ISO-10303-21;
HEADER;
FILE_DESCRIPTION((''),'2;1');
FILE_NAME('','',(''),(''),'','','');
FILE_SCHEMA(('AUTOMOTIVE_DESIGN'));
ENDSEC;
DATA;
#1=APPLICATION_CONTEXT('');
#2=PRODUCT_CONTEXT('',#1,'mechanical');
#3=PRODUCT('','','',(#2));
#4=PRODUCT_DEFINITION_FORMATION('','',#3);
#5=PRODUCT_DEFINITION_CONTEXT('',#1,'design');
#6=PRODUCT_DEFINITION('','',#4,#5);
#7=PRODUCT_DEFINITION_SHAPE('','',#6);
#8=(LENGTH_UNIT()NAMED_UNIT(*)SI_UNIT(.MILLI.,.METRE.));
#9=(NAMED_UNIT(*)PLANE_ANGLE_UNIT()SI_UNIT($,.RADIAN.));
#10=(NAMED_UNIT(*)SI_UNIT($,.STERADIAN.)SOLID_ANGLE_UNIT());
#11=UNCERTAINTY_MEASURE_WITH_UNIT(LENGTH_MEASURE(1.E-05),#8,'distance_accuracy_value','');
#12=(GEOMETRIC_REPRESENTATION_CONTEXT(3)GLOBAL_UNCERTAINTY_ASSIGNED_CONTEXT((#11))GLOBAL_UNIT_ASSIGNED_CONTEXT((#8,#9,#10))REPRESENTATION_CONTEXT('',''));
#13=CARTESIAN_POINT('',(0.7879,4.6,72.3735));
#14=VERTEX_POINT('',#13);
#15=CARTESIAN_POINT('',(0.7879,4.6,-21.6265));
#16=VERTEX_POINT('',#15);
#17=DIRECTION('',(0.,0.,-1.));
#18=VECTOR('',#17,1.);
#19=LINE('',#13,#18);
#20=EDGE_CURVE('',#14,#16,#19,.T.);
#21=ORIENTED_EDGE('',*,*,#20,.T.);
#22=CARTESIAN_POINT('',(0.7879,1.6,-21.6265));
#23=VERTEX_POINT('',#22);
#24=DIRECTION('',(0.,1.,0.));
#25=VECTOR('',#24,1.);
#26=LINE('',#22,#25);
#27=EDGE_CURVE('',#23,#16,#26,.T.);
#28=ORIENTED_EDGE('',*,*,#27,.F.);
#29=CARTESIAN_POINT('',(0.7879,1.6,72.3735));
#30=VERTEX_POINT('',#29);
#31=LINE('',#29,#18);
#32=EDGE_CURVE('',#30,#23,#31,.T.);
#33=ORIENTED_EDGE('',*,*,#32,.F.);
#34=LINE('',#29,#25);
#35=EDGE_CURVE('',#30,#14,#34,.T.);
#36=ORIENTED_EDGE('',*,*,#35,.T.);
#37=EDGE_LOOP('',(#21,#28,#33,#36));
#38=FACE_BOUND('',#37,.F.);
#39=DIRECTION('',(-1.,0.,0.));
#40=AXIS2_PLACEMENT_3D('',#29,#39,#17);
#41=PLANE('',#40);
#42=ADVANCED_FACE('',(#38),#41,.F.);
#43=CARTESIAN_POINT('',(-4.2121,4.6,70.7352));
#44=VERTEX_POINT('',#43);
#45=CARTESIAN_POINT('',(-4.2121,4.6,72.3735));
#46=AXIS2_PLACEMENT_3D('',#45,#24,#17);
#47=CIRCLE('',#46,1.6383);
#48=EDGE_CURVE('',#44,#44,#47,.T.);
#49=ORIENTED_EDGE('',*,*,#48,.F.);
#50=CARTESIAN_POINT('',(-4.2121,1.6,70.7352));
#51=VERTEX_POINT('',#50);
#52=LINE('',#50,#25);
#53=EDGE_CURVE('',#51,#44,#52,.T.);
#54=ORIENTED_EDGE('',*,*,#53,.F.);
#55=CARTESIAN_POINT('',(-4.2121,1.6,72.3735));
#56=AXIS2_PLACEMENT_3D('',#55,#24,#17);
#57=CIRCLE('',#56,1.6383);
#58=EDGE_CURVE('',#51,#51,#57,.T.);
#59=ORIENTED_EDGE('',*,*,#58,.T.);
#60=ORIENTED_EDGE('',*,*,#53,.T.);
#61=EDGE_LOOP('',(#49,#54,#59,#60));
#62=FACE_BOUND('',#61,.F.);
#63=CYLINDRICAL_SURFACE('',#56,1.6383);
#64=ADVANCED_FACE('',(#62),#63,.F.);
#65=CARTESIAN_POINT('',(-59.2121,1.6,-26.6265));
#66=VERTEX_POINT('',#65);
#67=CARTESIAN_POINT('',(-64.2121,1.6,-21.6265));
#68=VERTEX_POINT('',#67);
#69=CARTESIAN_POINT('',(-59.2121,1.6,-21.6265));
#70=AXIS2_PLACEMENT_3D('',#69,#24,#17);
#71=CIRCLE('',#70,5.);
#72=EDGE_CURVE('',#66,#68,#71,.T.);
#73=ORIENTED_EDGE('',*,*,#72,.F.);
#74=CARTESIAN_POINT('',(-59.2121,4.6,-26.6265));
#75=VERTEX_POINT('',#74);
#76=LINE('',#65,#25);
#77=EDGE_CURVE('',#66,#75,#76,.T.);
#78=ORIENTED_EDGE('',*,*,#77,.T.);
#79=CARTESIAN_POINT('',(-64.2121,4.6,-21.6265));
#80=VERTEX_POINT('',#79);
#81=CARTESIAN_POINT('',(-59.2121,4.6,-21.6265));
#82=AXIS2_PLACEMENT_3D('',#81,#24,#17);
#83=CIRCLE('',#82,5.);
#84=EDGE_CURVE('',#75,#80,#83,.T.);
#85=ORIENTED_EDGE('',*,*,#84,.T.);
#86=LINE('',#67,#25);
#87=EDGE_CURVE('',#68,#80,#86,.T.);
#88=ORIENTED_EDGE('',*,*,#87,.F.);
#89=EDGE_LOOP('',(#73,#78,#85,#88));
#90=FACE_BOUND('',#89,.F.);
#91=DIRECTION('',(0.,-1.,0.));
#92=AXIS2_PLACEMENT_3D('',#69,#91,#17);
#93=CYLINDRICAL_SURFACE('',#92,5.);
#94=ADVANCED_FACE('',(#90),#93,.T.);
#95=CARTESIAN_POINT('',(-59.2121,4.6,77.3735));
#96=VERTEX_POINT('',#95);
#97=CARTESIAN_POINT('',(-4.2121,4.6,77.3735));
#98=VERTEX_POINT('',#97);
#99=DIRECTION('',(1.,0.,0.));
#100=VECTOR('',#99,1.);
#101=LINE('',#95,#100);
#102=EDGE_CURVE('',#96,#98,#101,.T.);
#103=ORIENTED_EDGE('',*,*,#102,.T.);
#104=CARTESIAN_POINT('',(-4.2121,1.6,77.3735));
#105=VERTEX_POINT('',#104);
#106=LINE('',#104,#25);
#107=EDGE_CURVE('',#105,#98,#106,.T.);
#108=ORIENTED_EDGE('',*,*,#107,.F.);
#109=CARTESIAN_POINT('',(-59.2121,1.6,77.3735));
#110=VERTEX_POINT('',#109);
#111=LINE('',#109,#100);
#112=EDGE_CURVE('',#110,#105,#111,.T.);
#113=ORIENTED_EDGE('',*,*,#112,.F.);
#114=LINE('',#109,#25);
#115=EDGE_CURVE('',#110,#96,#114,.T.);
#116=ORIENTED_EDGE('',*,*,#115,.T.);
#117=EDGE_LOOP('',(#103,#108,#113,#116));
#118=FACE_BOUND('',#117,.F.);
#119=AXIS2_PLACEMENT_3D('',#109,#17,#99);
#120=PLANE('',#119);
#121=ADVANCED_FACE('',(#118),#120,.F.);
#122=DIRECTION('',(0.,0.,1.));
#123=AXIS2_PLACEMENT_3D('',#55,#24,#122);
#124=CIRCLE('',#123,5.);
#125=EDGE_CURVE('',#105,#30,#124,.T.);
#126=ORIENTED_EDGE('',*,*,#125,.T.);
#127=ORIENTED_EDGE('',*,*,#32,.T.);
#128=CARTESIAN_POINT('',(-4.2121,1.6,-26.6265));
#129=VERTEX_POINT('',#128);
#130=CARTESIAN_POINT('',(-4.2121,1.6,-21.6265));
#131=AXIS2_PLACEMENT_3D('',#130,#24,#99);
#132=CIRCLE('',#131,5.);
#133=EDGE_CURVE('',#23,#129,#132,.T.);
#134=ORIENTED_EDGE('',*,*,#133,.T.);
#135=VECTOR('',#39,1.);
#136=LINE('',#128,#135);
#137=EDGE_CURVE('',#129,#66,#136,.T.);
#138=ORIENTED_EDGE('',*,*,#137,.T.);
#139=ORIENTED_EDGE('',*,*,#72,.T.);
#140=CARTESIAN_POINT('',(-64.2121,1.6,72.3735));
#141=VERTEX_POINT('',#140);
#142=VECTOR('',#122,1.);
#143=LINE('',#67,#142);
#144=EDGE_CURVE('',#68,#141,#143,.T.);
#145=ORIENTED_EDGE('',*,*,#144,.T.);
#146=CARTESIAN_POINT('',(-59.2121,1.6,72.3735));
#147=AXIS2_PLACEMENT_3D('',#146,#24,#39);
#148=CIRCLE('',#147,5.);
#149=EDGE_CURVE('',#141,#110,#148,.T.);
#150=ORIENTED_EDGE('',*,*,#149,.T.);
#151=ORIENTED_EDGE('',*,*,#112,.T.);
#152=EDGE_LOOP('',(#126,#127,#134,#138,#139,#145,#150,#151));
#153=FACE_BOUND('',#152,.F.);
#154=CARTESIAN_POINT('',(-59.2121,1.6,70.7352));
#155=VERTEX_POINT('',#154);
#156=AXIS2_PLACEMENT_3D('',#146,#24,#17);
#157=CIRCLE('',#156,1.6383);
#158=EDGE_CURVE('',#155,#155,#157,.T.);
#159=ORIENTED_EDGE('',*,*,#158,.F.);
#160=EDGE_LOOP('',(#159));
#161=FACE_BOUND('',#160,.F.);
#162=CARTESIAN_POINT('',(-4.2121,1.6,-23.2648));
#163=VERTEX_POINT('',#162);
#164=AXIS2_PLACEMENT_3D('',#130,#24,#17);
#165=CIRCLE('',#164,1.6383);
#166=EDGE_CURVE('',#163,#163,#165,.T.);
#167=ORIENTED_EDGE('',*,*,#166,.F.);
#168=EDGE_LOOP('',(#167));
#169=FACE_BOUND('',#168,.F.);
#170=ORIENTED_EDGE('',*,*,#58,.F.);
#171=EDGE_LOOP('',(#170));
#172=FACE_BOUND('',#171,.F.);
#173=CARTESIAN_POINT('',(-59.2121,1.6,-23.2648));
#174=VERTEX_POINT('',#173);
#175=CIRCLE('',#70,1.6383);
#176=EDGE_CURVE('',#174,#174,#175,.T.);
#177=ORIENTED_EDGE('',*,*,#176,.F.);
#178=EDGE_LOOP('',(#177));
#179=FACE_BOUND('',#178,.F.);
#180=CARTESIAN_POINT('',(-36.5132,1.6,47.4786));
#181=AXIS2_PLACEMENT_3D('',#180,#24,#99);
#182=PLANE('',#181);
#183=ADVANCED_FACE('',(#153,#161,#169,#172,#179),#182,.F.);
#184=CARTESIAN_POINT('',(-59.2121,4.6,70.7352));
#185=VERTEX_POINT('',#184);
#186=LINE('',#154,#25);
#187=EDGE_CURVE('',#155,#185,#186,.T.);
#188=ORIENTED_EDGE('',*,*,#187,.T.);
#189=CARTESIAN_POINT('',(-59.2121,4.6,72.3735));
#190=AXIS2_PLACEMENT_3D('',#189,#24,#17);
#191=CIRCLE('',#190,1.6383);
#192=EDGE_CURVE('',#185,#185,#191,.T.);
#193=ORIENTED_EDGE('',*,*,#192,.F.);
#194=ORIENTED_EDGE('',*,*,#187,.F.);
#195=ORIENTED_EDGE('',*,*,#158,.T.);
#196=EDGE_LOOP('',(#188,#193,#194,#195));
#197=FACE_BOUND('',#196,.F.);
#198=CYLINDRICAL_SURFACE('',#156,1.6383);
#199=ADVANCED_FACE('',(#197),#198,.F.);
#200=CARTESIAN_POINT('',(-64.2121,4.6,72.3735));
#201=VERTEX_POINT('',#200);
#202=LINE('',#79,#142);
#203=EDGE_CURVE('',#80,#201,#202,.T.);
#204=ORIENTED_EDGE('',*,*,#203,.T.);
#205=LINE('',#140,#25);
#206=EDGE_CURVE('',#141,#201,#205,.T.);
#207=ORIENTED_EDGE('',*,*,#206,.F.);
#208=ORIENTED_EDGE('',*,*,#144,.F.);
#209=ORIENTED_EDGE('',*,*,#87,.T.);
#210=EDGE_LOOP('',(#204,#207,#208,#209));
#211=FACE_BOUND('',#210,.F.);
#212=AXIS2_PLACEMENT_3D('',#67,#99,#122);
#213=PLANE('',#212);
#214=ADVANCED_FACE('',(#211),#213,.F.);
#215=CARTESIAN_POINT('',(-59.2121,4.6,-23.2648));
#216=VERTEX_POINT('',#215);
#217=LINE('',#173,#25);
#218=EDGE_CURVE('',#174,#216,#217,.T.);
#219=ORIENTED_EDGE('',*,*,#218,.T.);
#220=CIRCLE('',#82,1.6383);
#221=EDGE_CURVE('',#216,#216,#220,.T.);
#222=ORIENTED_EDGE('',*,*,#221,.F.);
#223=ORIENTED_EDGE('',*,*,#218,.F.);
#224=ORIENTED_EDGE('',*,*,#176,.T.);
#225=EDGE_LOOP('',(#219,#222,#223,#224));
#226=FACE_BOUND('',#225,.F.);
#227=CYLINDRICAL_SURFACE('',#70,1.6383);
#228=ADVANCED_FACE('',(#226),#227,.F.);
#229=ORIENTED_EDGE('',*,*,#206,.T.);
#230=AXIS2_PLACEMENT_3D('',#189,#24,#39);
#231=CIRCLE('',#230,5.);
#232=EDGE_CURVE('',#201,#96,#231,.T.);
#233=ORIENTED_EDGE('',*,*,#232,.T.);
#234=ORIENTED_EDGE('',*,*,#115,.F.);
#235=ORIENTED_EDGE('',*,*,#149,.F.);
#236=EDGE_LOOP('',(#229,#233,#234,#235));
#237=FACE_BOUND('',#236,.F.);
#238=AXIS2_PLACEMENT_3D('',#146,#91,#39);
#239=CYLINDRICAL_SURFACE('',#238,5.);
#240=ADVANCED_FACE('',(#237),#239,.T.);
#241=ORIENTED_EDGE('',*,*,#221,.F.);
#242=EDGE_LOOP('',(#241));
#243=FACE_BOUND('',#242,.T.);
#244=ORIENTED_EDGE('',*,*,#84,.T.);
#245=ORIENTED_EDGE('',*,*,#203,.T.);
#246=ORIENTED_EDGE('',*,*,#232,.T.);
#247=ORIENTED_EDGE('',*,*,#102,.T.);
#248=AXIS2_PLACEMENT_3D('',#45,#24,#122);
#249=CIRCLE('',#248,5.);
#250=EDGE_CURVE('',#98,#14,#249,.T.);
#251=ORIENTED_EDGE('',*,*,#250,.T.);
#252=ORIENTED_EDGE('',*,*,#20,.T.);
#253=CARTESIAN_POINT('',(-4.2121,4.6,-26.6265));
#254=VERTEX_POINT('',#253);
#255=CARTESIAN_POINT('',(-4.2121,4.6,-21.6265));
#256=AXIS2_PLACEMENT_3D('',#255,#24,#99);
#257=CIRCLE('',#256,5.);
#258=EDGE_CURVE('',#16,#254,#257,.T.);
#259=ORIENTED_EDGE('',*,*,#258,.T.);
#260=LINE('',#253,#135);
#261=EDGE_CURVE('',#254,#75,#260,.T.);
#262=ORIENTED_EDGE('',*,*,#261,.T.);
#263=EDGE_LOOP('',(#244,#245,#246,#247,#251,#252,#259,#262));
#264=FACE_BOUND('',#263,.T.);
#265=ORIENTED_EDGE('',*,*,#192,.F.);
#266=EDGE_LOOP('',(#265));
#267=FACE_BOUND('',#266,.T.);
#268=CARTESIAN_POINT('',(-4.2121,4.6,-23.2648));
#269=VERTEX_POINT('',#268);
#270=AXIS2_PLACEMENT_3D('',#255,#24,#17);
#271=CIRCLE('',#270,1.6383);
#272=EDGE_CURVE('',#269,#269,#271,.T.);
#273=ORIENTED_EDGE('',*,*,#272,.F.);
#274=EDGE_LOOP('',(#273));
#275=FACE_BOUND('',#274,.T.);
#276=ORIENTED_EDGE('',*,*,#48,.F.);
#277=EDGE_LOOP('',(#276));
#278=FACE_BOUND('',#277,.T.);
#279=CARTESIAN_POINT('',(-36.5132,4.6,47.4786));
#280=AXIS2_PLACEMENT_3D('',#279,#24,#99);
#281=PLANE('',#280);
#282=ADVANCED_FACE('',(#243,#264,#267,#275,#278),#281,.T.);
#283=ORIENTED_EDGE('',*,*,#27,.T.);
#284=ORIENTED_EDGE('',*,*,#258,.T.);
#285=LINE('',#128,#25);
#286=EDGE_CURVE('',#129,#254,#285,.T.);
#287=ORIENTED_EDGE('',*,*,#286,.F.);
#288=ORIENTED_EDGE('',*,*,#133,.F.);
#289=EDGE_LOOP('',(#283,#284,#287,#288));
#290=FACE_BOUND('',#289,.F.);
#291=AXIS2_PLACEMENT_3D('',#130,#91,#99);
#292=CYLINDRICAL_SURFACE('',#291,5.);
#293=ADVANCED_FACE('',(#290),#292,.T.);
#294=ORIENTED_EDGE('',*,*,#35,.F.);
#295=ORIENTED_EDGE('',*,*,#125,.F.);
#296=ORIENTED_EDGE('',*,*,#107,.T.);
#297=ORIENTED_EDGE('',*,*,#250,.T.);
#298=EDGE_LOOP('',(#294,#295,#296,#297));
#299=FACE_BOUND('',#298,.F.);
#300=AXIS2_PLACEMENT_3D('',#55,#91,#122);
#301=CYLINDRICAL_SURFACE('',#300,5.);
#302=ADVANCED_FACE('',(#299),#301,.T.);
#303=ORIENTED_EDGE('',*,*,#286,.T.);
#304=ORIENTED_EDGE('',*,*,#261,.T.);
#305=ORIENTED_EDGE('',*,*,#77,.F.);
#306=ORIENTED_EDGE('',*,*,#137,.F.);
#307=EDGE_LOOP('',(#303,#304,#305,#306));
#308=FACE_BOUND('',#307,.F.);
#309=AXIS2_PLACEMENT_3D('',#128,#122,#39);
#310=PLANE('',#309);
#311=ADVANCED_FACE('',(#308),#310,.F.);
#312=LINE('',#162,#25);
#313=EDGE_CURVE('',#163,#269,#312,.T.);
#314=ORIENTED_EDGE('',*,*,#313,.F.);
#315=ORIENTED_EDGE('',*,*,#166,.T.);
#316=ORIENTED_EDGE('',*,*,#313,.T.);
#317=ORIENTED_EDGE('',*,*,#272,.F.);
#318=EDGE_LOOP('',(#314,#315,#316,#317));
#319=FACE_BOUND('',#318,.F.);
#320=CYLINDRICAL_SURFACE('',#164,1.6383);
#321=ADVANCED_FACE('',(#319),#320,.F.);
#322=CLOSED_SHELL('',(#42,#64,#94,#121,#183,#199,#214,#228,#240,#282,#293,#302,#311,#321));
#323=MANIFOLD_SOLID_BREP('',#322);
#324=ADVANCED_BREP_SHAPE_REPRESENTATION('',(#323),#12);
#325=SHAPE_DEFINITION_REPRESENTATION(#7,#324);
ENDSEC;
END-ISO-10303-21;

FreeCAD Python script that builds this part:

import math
import FreeCAD as App
import Part
import Sketcher

doc = App.newDocument("Part")
body = doc.addObject("PartDesign::Body", "Body")

sketch1 = body.newObject("Sketcher::SketchObject", "Sketch")
sketch1.AttachmentSupport = (doc.getObject("XZ_Plane"), [""])
sketch1.MapMode = "FlatFace"
sketch1.AttachmentOffset = App.Placement(App.Vector(0, 0, -1.6), App.Rotation())
sketch1.addGeometry([
    Part.ArcOfCircle(Part.Circle(App.Vector(-59, 72, 0), App.Vector(0, 0, 1), 5), math.radians(90), math.radians(180)),
    Part.LineSegment(App.Vector(-59, 77, 0), App.Vector(-4, 77, 0)),
    Part.ArcOfCircle(Part.Circle(App.Vector(-4, 72, 0), App.Vector(0, 0, 1), 5), math.radians(0), math.radians(90)),
    Part.LineSegment(App.Vector(1, 72, 0), App.Vector(1, -22, 0)),
    Part.ArcOfCircle(Part.Circle(App.Vector(-4, -22, 0), App.Vector(0, 0, 1), 5), math.radians(-90), math.radians(0)),
    Part.LineSegment(App.Vector(-4, -27, 0), App.Vector(-59, -27, 0)),
    Part.ArcOfCircle(Part.Circle(App.Vector(-59, -22, 0), App.Vector(0, 0, 1), 5), math.radians(180), math.radians(270)),
    Part.LineSegment(App.Vector(-64, -22, 0), App.Vector(-64, 72, 0)),
], False)
sketch1.addConstraint([
    Sketcher.Constraint("Tangent", 0, 1, 1, 1),
    Sketcher.Constraint("Tangent", 1, 2, 2, 2),
    Sketcher.Constraint("Tangent", 2, 1, 3, 1),
    Sketcher.Constraint("Tangent", 3, 2, 4, 2),
    Sketcher.Constraint("Tangent", 4, 1, 5, 1),
    Sketcher.Constraint("Tangent", 5, 2, 6, 2),
    Sketcher.Constraint("Tangent", 6, 1, 7, 1),
    Sketcher.Constraint("Tangent", 7, 2, 0, 2),
    Sketcher.Constraint("Horizontal", 1),
    Sketcher.Constraint("Vertical", 3),
    Sketcher.Constraint("Horizontal", 5),
    Sketcher.Constraint("Vertical", 7),
    Sketcher.Constraint("Equal", 0, 2),
    Sketcher.Constraint("Equal", 2, 4),
    Sketcher.Constraint("Equal", 4, 6),
    Sketcher.Constraint("Radius", 0, 5.0),
    Sketcher.Constraint("DistanceX", 1, 1, 1, 2, 55.0),
    Sketcher.Constraint("DistanceY", 3, 2, 3, 1, 94.0),
    Sketcher.Constraint("DistanceX", 0, 3, -1, 1, 59.212),
    Sketcher.Constraint("DistanceY", -1, 1, 0, 3, 72.3735),
])
pad1 = body.newObject("PartDesign::Pad", "Pad")
pad1.Profile = sketch1
pad1.Length = 3
pad1.Reversed = True

sketch2 = body.newObject("Sketcher::SketchObject", "Sketch001")
sketch2.AttachmentSupport = (doc.getObject("XZ_Plane"), [""])
sketch2.MapMode = "FlatFace"
sketch2.AttachmentOffset = App.Placement(App.Vector(0, 0, -1.6), App.Rotation())
sketch2.addGeometry([
    Part.Circle(App.Vector(-59.2, -21.6, 0), App.Vector(0, 0, 1), 1.6),
    Part.Circle(App.Vector(-4.2, 72.4, 0), App.Vector(0, 0, 1), 1.6),
    Part.Circle(App.Vector(-59.2, 72.4, 0), App.Vector(0, 0, 1), 1.6),
    Part.Circle(App.Vector(-4.2, -21.6, 0), App.Vector(0, 0, 1), 1.6),
], False)
sketch2.addConstraint([
    Sketcher.Constraint("Equal", 0, 1),
    Sketcher.Constraint("Equal", 1, 2),
    Sketcher.Constraint("Equal", 2, 3),
    Sketcher.Constraint("Horizontal", 1, 3, 2, 3),
    Sketcher.Constraint("Horizontal", 0, 3, 3, 3),
    Sketcher.Constraint("Vertical", 0, 3, 2, 3),
    Sketcher.Constraint("Vertical", 1, 3, 3, 3),
    Sketcher.Constraint("DistanceX", 0, 3, 1, 3, 55.0),
    Sketcher.Constraint("DistanceY", 0, 3, 1, 3, 94.0),
    Sketcher.Constraint("Diameter", 0, 3.2766),
    Sketcher.Constraint("DistanceX", 0, 3, -1, 1, 59.212),
    Sketcher.Constraint("DistanceY", 0, 3, -1, 1, 21.6265),
])
doc.recompute()
hole = body.newObject("PartDesign::Hole", "Hole")
hole.Profile = sketch2
hole.ThreadType = "None"
hole.Diameter = 3.2766
hole.DepthType = "ThroughAll"

doc.recompute()
